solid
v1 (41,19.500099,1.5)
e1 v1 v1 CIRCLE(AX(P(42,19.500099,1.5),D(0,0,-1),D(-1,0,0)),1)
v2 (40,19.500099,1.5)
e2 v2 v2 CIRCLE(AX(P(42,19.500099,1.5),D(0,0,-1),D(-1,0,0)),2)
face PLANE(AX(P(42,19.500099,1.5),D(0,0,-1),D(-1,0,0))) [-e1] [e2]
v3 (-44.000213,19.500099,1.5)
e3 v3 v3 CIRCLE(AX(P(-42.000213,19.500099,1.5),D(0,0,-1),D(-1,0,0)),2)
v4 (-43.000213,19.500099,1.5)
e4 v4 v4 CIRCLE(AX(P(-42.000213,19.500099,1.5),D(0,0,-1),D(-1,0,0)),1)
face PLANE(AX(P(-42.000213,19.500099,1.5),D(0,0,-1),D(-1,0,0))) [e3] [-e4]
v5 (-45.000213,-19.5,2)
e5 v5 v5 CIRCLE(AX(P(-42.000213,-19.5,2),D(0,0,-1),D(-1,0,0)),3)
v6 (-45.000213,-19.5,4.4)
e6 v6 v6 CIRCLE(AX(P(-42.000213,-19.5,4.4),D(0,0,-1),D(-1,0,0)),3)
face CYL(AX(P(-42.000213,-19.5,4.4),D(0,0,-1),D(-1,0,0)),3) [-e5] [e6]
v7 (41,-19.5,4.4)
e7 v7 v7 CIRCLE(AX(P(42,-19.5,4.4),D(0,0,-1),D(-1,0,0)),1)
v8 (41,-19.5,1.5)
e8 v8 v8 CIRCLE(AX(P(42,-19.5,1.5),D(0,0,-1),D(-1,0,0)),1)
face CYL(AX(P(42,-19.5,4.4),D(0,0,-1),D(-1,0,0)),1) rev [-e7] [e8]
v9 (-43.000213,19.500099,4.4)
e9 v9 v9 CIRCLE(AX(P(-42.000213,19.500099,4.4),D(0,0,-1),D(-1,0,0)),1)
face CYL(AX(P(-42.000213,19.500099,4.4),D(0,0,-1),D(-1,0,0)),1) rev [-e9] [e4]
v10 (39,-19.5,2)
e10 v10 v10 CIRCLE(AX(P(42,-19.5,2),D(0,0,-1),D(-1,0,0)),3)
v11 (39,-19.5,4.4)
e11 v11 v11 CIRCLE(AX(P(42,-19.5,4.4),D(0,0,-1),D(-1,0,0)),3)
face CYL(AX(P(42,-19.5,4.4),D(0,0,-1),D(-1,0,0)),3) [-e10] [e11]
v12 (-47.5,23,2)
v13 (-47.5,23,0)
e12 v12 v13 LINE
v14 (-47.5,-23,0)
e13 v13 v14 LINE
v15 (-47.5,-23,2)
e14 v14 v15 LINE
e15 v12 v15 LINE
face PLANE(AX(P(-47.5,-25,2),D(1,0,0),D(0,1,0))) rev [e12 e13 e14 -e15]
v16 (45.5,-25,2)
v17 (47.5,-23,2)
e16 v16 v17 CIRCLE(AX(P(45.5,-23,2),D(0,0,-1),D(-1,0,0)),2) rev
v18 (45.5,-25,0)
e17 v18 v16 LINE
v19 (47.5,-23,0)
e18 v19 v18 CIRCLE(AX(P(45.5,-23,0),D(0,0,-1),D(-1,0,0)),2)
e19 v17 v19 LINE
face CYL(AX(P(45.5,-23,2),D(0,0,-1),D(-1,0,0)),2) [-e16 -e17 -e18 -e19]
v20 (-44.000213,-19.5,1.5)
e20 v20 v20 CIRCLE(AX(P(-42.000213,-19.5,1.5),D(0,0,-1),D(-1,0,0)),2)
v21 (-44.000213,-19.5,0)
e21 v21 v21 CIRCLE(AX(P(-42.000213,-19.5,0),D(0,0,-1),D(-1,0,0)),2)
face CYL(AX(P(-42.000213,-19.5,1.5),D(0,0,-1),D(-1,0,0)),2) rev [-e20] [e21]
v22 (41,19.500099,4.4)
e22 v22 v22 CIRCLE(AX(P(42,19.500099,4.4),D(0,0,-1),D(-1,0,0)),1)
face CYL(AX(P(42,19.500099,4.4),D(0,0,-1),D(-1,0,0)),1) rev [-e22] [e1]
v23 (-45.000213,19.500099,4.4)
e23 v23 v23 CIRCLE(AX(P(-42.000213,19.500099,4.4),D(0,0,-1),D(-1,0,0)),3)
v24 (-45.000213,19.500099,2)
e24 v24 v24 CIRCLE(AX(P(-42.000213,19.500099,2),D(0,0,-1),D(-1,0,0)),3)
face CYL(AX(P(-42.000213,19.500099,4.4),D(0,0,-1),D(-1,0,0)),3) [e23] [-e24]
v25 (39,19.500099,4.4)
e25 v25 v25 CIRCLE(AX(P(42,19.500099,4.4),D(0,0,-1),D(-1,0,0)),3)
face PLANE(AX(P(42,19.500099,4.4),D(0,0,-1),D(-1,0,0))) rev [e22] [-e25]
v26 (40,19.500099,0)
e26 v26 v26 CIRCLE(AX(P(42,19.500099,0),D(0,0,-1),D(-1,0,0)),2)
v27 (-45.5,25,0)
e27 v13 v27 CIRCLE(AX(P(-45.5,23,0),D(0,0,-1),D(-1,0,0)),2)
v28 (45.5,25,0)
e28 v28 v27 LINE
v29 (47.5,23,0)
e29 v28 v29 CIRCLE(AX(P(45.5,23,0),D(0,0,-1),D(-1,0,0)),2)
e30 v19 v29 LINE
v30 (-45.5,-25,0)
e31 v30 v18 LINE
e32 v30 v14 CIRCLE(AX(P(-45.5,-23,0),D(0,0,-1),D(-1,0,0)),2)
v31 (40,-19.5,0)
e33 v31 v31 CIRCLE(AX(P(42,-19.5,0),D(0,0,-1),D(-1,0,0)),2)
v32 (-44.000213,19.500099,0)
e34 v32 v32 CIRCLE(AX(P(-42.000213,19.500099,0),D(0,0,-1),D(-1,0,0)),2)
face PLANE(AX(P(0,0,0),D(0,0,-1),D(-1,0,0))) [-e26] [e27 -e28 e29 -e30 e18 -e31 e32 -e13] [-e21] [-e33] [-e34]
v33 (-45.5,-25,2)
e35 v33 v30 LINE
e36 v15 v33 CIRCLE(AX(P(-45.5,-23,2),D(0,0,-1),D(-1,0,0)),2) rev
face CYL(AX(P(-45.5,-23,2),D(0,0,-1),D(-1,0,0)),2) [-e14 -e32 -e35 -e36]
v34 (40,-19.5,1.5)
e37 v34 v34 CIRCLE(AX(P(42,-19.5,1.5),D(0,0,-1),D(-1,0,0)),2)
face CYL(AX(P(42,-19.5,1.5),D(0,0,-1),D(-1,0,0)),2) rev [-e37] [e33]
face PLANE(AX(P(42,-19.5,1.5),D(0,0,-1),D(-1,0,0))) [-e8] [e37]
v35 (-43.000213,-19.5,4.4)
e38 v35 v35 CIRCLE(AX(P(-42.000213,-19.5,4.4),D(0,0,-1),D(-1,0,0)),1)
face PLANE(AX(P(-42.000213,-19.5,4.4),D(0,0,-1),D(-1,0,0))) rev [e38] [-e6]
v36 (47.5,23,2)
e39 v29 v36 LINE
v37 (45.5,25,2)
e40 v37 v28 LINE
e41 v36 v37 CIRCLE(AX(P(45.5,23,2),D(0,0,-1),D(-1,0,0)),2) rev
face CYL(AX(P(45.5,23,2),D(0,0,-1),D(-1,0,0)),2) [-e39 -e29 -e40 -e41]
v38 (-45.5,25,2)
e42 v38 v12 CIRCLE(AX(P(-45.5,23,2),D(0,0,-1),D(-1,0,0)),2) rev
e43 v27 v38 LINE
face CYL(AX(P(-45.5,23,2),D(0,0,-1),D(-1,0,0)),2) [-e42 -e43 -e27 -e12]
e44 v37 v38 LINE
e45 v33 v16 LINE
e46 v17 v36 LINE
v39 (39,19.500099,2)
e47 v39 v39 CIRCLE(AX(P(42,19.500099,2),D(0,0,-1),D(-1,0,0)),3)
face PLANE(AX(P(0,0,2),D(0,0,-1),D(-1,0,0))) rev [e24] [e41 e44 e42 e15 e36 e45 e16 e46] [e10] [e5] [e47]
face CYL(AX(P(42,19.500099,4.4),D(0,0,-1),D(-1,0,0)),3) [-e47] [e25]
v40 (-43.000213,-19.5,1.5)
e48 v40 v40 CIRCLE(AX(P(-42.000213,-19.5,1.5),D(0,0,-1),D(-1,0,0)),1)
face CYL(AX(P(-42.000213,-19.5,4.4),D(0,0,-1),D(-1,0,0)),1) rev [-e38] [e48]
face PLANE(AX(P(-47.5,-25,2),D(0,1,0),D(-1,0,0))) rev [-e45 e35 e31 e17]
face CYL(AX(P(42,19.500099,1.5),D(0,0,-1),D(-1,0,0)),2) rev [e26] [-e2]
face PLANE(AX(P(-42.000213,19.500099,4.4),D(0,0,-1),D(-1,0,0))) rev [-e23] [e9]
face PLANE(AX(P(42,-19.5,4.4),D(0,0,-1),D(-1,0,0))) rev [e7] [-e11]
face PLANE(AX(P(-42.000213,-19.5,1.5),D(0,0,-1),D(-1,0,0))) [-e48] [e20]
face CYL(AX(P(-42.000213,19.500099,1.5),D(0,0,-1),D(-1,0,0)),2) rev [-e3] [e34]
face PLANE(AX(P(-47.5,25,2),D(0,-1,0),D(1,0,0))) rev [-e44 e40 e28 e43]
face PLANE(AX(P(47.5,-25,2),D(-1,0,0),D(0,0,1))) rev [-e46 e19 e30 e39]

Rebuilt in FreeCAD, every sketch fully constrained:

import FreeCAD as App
import Part
import Sketcher

V = App.Vector
Q = App.Units.Quantity


def edges_at(feature, points):
    """Names of the edges that pass closest to the given points."""
    edges = feature.Shape.Edges
    near = lambda p: min(range(len(edges)), key=lambda i: edges[i].distToShape(Part.Vertex(*p))[0])
    return sorted({f"Edge{near(p) + 1}" for p in points})

doc = App.newDocument("Part")
params = doc.addObject("Spreadsheet::Sheet", "Params")
for row, (alias, value) in enumerate([
    ("sketch1_width", "95 mm"),
    ("sketch1_height", "50 mm"),
    ("pad1_length", "2 mm"),
    ("sketch2_diameter", "6 mm"),
    ("pad2_length", "2.4 mm"),
    ("sketch3_diameter", "4 mm"),
    ("pocket1_length", "1.5 mm"),
    ("sketch4_diameter", "2 mm"),
    ("fillet_radius", "2 mm"),
], start=1):
    params.set(f"A{row}", alias)
    params.set(f"B{row}", "=" + value)
    params.setAlias(f"B{row}", alias)

body = doc.addObject("PartDesign::Body", "Body")

# Sketch on XY plane
sketch1 = body.newObject("Sketcher::SketchObject", "Sketch")
sketch1.AttachmentSupport = (doc.getObject("XY_Plane"), [""])
sketch1.MapMode = "FlatFace"
sketch1.addGeometry([
    Part.LineSegment(V(-47.5, 25, 0), V(-47.5, -25, 0)),
    Part.LineSegment(V(-47.5, -25, 0), V(47.5, -25, 0)),
    Part.LineSegment(V(47.5, -25, 0), V(47.5, 25, 0)),
    Part.LineSegment(V(47.5, 25, 0), V(-47.5, 25, 0)),
], False)
sketch1.addConstraint([
    Sketcher.Constraint("Coincident", 0, 2, 1, 1),
    Sketcher.Constraint("Coincident", 1, 2, 2, 1),
    Sketcher.Constraint("Coincident", 2, 2, 3, 1),
    Sketcher.Constraint("Coincident", 3, 2, 0, 1),
    Sketcher.Constraint("Vertical", 0),
    Sketcher.Constraint("Horizontal", 1),
    Sketcher.Constraint("Vertical", 2),
    Sketcher.Constraint("Horizontal", 3),
    Sketcher.Constraint("Symmetric", 0, 2, 2, 2, -1, 1),
    Sketcher.Constraint("DistanceX", 1, 1, 1, 2, Q("95 mm")),
    Sketcher.Constraint("DistanceY", 0, 2, 0, 1, Q("50 mm")),
])
sketch1.setExpression("Constraints[9]", "Params.sketch1_width")
sketch1.setExpression("Constraints[10]", "Params.sketch1_height")
pad1 = body.newObject("PartDesign::Pad", "Pad")
pad1.Profile = sketch1
pad1.setExpression("Length", "Params.pad1_length")

# Sketch on XY plane
sketch2 = body.newObject("Sketcher::SketchObject", "Sketch001")
sketch2.AttachmentSupport = (doc.getObject("XY_Plane"), [""])
sketch2.MapMode = "FlatFace"
sketch2.AttachmentOffset = App.Placement(V(0, 0, 2), App.Rotation())
sketch2.addGeometry([
    Part.Circle(V(42, 19.500099, 0), V(0, 0, 1), 3),
    Part.Circle(V(-42.000213, 19.500099, 0), V(0, 0, 1), 3),
    Part.Circle(V(-42.000213, -19.5, 0), V(0, 0, 1), 3),
    Part.Circle(V(42, -19.5, 0), V(0, 0, 1), 3),
], False)
sketch2.addConstraint([
    Sketcher.Constraint("Equal", 0, 1),
    Sketcher.Constraint("Equal", 1, 2),
    Sketcher.Constraint("Equal", 2, 3),
    Sketcher.Constraint("Horizontal", 0, 3, 1, 3),
    Sketcher.Constraint("Horizontal", 2, 3, 3, 3),
    Sketcher.Constraint("Vertical", 1, 3, 2, 3),
    Sketcher.Constraint("Vertical", 0, 3, 3, 3),
    Sketcher.Constraint("Diameter", 0, Q("6 mm")),
    Sketcher.Constraint("DistanceX", -1, 1, 0, 3, Q("42 mm")),
    Sketcher.Constraint("DistanceY", 2, 3, -1, 1, Q("19.5 mm")),
    Sketcher.Constraint("DistanceY", -1, 1, 0, 3, Q("19.500099 mm")),
    Sketcher.Constraint("DistanceX", 1, 3, -1, 1, Q("42.000213 mm")),
])
sketch2.setExpression("Constraints[7]", "Params.sketch2_diameter")
pad2 = body.newObject("PartDesign::Pad", "Pad001")
pad2.Profile = sketch2
pad2.setExpression("Length", "Params.pad2_length")

# Sketch on XY plane
sketch3 = body.newObject("Sketcher::SketchObject", "Sketch002")
sketch3.AttachmentSupport = (doc.getObject("XY_Plane"), [""])
sketch3.MapMode = "FlatFace"
sketch3.addGeometry([
    Part.Circle(V(42, 19.500099, 0), V(0, 0, 1), 2),
    Part.Circle(V(42, -19.5, 0), V(0, 0, 1), 2),
    Part.Circle(V(-42.000213, 19.500099, 0), V(0, 0, 1), 2),
    Part.Circle(V(-42.000213, -19.5, 0), V(0, 0, 1), 2),
], False)
sketch3.addConstraint([
    Sketcher.Constraint("Equal", 0, 1),
    Sketcher.Constraint("Equal", 1, 2),
    Sketcher.Constraint("Equal", 2, 3),
    Sketcher.Constraint("Horizontal", 0, 3, 2, 3),
    Sketcher.Constraint("Horizontal", 1, 3, 3, 3),
    Sketcher.Constraint("Vertical", 0, 3, 1, 3),
    Sketcher.Constraint("Vertical", 2, 3, 3, 3),
    Sketcher.Constraint("Diameter", 0, Q("4 mm")),
    Sketcher.Constraint("DistanceX", -1, 1, 0, 3, Q("42 mm")),
    Sketcher.Constraint("DistanceY", 1, 3, -1, 1, Q("19.5 mm")),
    Sketcher.Constraint("DistanceY", -1, 1, 0, 3, Q("19.500099 mm")),
    Sketcher.Constraint("DistanceX", 2, 3, -1, 1, Q("42.000213 mm")),
])
sketch3.setExpression("Constraints[7]", "Params.sketch3_diameter")
pocket1 = body.newObject("PartDesign::Pocket", "Pocket")
pocket1.Profile = sketch3
pocket1.setExpression("Length", "Params.pocket1_length")
pocket1.Reversed = True

# Sketch on XY plane
sketch4 = body.newObject("Sketcher::SketchObject", "Sketch003")
sketch4.AttachmentSupport = (doc.getObject("XY_Plane"), [""])
sketch4.MapMode = "FlatFace"
sketch4.addGeometry([
    Part.Circle(V(42, 19.500099, 0), V(0, 0, 1), 1),
    Part.Circle(V(-42.000213, 19.500099, 0), V(0, 0, 1), 1),
    Part.Circle(V(-42.000213, -19.5, 0), V(0, 0, 1), 1),
    Part.Circle(V(42, -19.5, 0), V(0, 0, 1), 1),
], False)
sketch4.addConstraint([
    Sketcher.Constraint("Equal", 0, 1),
    Sketcher.Constraint("Equal", 1, 2),
    Sketcher.Constraint("Equal", 2, 3),
    Sketcher.Constraint("Horizontal", 0, 3, 1, 3),
    Sketcher.Constraint("Horizontal", 2, 3, 3, 3),
    Sketcher.Constraint("Vertical", 1, 3, 2, 3),
    Sketcher.Constraint("Vertical", 0, 3, 3, 3),
    Sketcher.Constraint("Diameter", 0, Q("2 mm")),
    Sketcher.Constraint("DistanceX", -1, 1, 0, 3, Q("42 mm")),
    Sketcher.Constraint("DistanceY", 2, 3, -1, 1, Q("19.5 mm")),
    Sketcher.Constraint("DistanceY", -1, 1, 0, 3, Q("19.500099 mm")),
    Sketcher.Constraint("DistanceX", 1, 3, -1, 1, Q("42.000213 mm")),
])
sketch4.setExpression("Constraints[7]", "Params.sketch4_diameter")
pocket2 = body.newObject("PartDesign::Pocket", "Pocket001")
pocket2.Profile = sketch4
pocket2.Type = "ThroughAll"
pocket2.Reversed = True
doc.recompute()

fillet = body.newObject("PartDesign::Fillet", "Fillet")
fillet.Base = (pocket2, edges_at(pocket2, [
    (47.5, -25, 1),
    (-47.5, -25, 1),
    (-47.5, 25, 1),
    (47.5, 25, 1),
]))
fillet.setExpression("Radius", "Params.fillet_radius")

doc.recompute()
